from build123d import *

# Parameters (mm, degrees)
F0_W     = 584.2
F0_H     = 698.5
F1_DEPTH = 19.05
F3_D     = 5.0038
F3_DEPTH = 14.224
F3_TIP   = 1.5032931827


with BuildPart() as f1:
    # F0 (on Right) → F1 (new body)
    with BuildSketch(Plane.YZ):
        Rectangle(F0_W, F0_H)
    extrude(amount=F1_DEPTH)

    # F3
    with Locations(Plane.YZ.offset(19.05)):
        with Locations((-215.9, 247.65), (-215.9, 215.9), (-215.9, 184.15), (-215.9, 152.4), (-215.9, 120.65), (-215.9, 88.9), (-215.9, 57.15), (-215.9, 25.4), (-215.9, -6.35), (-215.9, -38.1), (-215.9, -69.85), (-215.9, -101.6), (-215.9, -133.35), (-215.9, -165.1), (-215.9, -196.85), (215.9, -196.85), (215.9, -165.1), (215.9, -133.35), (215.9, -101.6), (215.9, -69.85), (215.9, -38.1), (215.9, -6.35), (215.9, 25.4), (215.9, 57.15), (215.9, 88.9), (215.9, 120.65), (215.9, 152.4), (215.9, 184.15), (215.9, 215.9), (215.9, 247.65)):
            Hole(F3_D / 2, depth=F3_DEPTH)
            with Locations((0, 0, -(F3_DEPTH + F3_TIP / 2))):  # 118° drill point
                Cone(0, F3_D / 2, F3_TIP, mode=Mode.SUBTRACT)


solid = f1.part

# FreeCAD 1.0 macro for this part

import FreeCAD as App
import Part
import Sketcher
from FreeCAD import Vector
Q = App.Units.Quantity


def add_polygon(sketch, points):
    """Adds a closed chain of lines whose ends are joined by coincident constraints."""
    first, n = sketch.GeometryCount, len(points)
    for a, b in zip(points, points[1:] + points[:1]):
        sketch.addGeometry(Part.LineSegment(App.Vector(*a, 0), App.Vector(*b, 0)), False)
    for i in range(n):
        sketch.addConstraint(Sketcher.Constraint("Coincident", first + i, 2, first + (i + 1) % n, 1))

doc = App.newDocument("Part")
body = doc.addObject("PartDesign::Body", "Body")

# Sketch on YZ plane
sketch1 = body.newObject("Sketcher::SketchObject", "Sketch")
sketch1.AttachmentSupport = (doc.getObject("YZ_Plane"), [""])
sketch1.MapMode = "FlatFace"
add_polygon(sketch1, [(-292.1, 349.25), (-292.1, -349.25), (292.1, -349.25), (292.1, 349.25)])  # lines 0-3
sketch1.addConstraint([
    Sketcher.Constraint("Vertical", 0),
    Sketcher.Constraint("Horizontal", 1),
    Sketcher.Constraint("Vertical", 2),
    Sketcher.Constraint("Horizontal", 3),
    Sketcher.Constraint("Symmetric", 0, 2, 2, 2, -1, 1),
    Sketcher.Constraint("DistanceX", 1, 1, 1, 2, Q("23 in")),
    Sketcher.Constraint("DistanceY", 0, 2, 0, 1, Q("27.5 in")),
])
pad1 = body.newObject("PartDesign::Pad", "Pad")
pad1.Profile = sketch1
pad1.Length = Q("0.75 in")

# Sketch on YZ plane
sketch2 = body.newObject("Sketcher::SketchObject", "Sketch001")
sketch2.AttachmentSupport = (doc.getObject("YZ_Plane"), [""])
sketch2.MapMode = "FlatFace"
sketch2.AttachmentOffset = App.Placement(Vector(0, 0, 0.75 * 25.4), App.Rotation())
sketch2.addGeometry([
    Part.Circle(Vector(-215.9, 247.65, 0), Vector(0, 0, 1), 2.5019),  # 0
    Part.Circle(Vector(-215.9, 215.9, 0), Vector(0, 0, 1), 2.5019),  # 1
    Part.Circle(Vector(-215.9, 184.15, 0), Vector(0, 0, 1), 2.5019),  # 2
    Part.Circle(Vector(-215.9, 152.4, 0), Vector(0, 0, 1), 2.5019),  # 3
    Part.Circle(Vector(-215.9, 120.65, 0), Vector(0, 0, 1), 2.5019),  # 4
    Part.Circle(Vector(-215.9, 88.9, 0), Vector(0, 0, 1), 2.5019),  # 5
    Part.Circle(Vector(-215.9, 57.15, 0), Vector(0, 0, 1), 2.5019),  # 6
    Part.Circle(Vector(-215.9, 25.4, 0), Vector(0, 0, 1), 2.5019),  # 7
    Part.Circle(Vector(-215.9, -6.35, 0), Vector(0, 0, 1), 2.5019),  # 8
    Part.Circle(Vector(-215.9, -38.1, 0), Vector(0, 0, 1), 2.5019),  # 9
    Part.Circle(Vector(-215.9, -69.85, 0), Vector(0, 0, 1), 2.5019),  # 10
    Part.Circle(Vector(-215.9, -101.6, 0), Vector(0, 0, 1), 2.5019),  # 11
    Part.Circle(Vector(-215.9, -133.35, 0), Vector(0, 0, 1), 2.5019),  # 12
    Part.Circle(Vector(-215.9, -165.1, 0), Vector(0, 0, 1), 2.5019),  # 13
    Part.Circle(Vector(-215.9, -196.85, 0), Vector(0, 0, 1), 2.5019),  # 14
    Part.Circle(Vector(215.9, -196.85, 0), Vector(0, 0, 1), 2.5019),  # 15
    Part.Circle(Vector(215.9, -165.1, 0), Vector(0, 0, 1), 2.5019),  # 16
    Part.Circle(Vector(215.9, -133.35, 0), Vector(0, 0, 1), 2.5019),  # 17
    Part.Circle(Vector(215.9, -101.6, 0), Vector(0, 0, 1), 2.5019),  # 18
    Part.Circle(Vector(215.9, -69.85, 0), Vector(0, 0, 1), 2.5019),  # 19
    Part.Circle(Vector(215.9, -38.1, 0), Vector(0, 0, 1), 2.5019),  # 20
    Part.Circle(Vector(215.9, -6.35, 0), Vector(0, 0, 1), 2.5019),  # 21
    Part.Circle(Vector(215.9, 25.4, 0), Vector(0, 0, 1), 2.5019),  # 22
    Part.Circle(Vector(215.9, 57.15, 0), Vector(0, 0, 1), 2.5019),  # 23
    Part.Circle(Vector(215.9, 88.9, 0), Vector(0, 0, 1), 2.5019),  # 24
    Part.Circle(Vector(215.9, 120.65, 0), Vector(0, 0, 1), 2.5019),  # 25
    Part.Circle(Vector(215.9, 152.4, 0), Vector(0, 0, 1), 2.5019),  # 26
    Part.Circle(Vector(215.9, 184.15, 0), Vector(0, 0, 1), 2.5019),  # 27
    Part.Circle(Vector(215.9, 215.9, 0), Vector(0, 0, 1), 2.5019),  # 28
    Part.Circle(Vector(215.9, 247.65, 0), Vector(0, 0, 1), 2.5019),  # 29
], False)
sketch2.addConstraint([
    Sketcher.Constraint("Equal", 0, 1),
    Sketcher.Constraint("Equal", 1, 2),
    Sketcher.Constraint("Equal", 2, 3),
    Sketcher.Constraint("Equal", 3, 4),
    Sketcher.Constraint("Equal", 4, 5),
    Sketcher.Constraint("Equal", 5, 6),
    Sketcher.Constraint("Equal", 6, 7),
    Sketcher.Constraint("Equal", 7, 8),
    Sketcher.Constraint("Equal", 8, 9),
    Sketcher.Constraint("Equal", 9, 10),
    Sketcher.Constraint("Equal", 10, 11),
    Sketcher.Constraint("Equal", 11, 12),
    Sketcher.Constraint("Equal", 12, 13),
    Sketcher.Constraint("Equal", 13, 14),
    Sketcher.Constraint("Equal", 14, 15),
    Sketcher.Constraint("Equal", 15, 16),
    Sketcher.Constraint("Equal", 16, 17),
    Sketcher.Constraint("Equal", 17, 18),
    Sketcher.Constraint("Equal", 18, 19),
    Sketcher.Constraint("Equal", 19, 20),
    Sketcher.Constraint("Equal", 20, 21),
    Sketcher.Constraint("Equal", 21, 22),
    Sketcher.Constraint("Equal", 22, 23),
    Sketcher.Constraint("Equal", 23, 24),
    Sketcher.Constraint("Equal", 24, 25),
    Sketcher.Constraint("Equal", 25, 26),
    Sketcher.Constraint("Equal", 26, 27),
    Sketcher.Constraint("Equal", 27, 28),
    Sketcher.Constraint("Equal", 28, 29),
    Sketcher.Constraint("Symmetric", 14, 3, 15, 3, -2),
    Sketcher.Constraint("Symmetric", 13, 3, 16, 3, -2),
    Sketcher.Constraint("Symmetric", 12, 3, 17, 3, -2),
    Sketcher.Constraint("Symmetric", 11, 3, 18, 3, -2),
    Sketcher.Constraint("Symmetric", 10, 3, 19, 3, -2),
    Sketcher.Constraint("Symmetric", 9, 3, 20, 3, -2),
    Sketcher.Constraint("Symmetric", 8, 3, 21, 3, -2),
    Sketcher.Constraint("Symmetric", 7, 3, 22, 3, -2),
    Sketcher.Constraint("Symmetric", 6, 3, 23, 3, -2),
    Sketcher.Constraint("Symmetric", 5, 3, 24, 3, -2),
    Sketcher.Constraint("Symmetric", 4, 3, 25, 3, -2),
    Sketcher.Constraint("Symmetric", 3, 3, 26, 3, -2),
    Sketcher.Constraint("Symmetric", 2, 3, 27, 3, -2),
    Sketcher.Constraint("Symmetric", 1, 3, 28, 3, -2),
    Sketcher.Constraint("Symmetric", 0, 3, 29, 3, -2),
    Sketcher.Constraint("Vertical", 0, 3, 1, 3),
    Sketcher.Constraint("Vertical", 1, 3, 2, 3),
    Sketcher.Constraint("Vertical", 2, 3, 3, 3),
    Sketcher.Constraint("Vertical", 3, 3, 4, 3),
    Sketcher.Constraint("Vertical", 4, 3, 5, 3),
    Sketcher.Constraint("Vertical", 5, 3, 6, 3),
    Sketcher.Constraint("Vertical", 6, 3, 7, 3),
    Sketcher.Constraint("Vertical", 7, 3, 8, 3),
    Sketcher.Constraint("Vertical", 8, 3, 9, 3),
    Sketcher.Constraint("Vertical", 9, 3, 10, 3),
    Sketcher.Constraint("Vertical", 10, 3, 11, 3),
    Sketcher.Constraint("Vertical", 11, 3, 12, 3),
    Sketcher.Constraint("Vertical", 12, 3, 13, 3),
    Sketcher.Constraint("Vertical", 13, 3, 14, 3),
    Sketcher.Constraint("Diameter", 0, Q("0.197 in")),
    Sketcher.Constraint("DistanceY", -1, 1, 3, 3, Q("6 in")),
    Sketcher.Constraint("DistanceY", -1, 1, 7, 3, Q("1 in")),
    Sketcher.Constraint("DistanceY", 11, 3, -1, 1, Q("4 in")),
    Sketcher.Constraint("DistanceY", 4, 3, 0, 3, Q("5 in")),
    Sketcher.Constraint("DistanceY", 5, 3, 1, 3, Q("5 in")),
    Sketcher.Constraint("DistanceY", 6, 3, 2, 3, Q("5 in")),
    Sketcher.Constraint("DistanceY", 8, 3, 4, 3, Q("5 in")),
    Sketcher.Constraint("DistanceY", 9, 3, 5, 3, Q("5 in")),
    Sketcher.Constraint("DistanceY", 10, 3, 6, 3, Q("5 in")),
    Sketcher.Constraint("DistanceY", 12, 3, 8, 3, Q("5 in")),
    Sketcher.Constraint("DistanceY", 13, 3, 9, 3, Q("5 in")),
    Sketcher.Constraint("DistanceY", 14, 3, 10, 3, Q("5 in")),
    Sketcher.Constraint("DistanceX", 14, 3, 15, 3, Q("17 in")),
    Sketcher.Constraint("DistanceY", -1, 1, 1, 3, Q("8.5 in")),
    Sketcher.Constraint("DistanceY", 2, 3, 0, 3, Q("2.5 in")),
    Sketcher.Constraint("DistanceY", -1, 1, 0, 3, Q("9.75 in")),
])
doc.recompute()
hole = body.newObject("PartDesign::Hole", "Hole")
hole.Profile = sketch2
hole.ThreadType = "None"
hole.Diameter = Q("0.197 in")
hole.DepthType = "Dimension"
hole.Depth = Q("0.56 in")
hole.DrillPoint = "Angled"
hole.DrillPointAngle = 118

doc.recompute()
